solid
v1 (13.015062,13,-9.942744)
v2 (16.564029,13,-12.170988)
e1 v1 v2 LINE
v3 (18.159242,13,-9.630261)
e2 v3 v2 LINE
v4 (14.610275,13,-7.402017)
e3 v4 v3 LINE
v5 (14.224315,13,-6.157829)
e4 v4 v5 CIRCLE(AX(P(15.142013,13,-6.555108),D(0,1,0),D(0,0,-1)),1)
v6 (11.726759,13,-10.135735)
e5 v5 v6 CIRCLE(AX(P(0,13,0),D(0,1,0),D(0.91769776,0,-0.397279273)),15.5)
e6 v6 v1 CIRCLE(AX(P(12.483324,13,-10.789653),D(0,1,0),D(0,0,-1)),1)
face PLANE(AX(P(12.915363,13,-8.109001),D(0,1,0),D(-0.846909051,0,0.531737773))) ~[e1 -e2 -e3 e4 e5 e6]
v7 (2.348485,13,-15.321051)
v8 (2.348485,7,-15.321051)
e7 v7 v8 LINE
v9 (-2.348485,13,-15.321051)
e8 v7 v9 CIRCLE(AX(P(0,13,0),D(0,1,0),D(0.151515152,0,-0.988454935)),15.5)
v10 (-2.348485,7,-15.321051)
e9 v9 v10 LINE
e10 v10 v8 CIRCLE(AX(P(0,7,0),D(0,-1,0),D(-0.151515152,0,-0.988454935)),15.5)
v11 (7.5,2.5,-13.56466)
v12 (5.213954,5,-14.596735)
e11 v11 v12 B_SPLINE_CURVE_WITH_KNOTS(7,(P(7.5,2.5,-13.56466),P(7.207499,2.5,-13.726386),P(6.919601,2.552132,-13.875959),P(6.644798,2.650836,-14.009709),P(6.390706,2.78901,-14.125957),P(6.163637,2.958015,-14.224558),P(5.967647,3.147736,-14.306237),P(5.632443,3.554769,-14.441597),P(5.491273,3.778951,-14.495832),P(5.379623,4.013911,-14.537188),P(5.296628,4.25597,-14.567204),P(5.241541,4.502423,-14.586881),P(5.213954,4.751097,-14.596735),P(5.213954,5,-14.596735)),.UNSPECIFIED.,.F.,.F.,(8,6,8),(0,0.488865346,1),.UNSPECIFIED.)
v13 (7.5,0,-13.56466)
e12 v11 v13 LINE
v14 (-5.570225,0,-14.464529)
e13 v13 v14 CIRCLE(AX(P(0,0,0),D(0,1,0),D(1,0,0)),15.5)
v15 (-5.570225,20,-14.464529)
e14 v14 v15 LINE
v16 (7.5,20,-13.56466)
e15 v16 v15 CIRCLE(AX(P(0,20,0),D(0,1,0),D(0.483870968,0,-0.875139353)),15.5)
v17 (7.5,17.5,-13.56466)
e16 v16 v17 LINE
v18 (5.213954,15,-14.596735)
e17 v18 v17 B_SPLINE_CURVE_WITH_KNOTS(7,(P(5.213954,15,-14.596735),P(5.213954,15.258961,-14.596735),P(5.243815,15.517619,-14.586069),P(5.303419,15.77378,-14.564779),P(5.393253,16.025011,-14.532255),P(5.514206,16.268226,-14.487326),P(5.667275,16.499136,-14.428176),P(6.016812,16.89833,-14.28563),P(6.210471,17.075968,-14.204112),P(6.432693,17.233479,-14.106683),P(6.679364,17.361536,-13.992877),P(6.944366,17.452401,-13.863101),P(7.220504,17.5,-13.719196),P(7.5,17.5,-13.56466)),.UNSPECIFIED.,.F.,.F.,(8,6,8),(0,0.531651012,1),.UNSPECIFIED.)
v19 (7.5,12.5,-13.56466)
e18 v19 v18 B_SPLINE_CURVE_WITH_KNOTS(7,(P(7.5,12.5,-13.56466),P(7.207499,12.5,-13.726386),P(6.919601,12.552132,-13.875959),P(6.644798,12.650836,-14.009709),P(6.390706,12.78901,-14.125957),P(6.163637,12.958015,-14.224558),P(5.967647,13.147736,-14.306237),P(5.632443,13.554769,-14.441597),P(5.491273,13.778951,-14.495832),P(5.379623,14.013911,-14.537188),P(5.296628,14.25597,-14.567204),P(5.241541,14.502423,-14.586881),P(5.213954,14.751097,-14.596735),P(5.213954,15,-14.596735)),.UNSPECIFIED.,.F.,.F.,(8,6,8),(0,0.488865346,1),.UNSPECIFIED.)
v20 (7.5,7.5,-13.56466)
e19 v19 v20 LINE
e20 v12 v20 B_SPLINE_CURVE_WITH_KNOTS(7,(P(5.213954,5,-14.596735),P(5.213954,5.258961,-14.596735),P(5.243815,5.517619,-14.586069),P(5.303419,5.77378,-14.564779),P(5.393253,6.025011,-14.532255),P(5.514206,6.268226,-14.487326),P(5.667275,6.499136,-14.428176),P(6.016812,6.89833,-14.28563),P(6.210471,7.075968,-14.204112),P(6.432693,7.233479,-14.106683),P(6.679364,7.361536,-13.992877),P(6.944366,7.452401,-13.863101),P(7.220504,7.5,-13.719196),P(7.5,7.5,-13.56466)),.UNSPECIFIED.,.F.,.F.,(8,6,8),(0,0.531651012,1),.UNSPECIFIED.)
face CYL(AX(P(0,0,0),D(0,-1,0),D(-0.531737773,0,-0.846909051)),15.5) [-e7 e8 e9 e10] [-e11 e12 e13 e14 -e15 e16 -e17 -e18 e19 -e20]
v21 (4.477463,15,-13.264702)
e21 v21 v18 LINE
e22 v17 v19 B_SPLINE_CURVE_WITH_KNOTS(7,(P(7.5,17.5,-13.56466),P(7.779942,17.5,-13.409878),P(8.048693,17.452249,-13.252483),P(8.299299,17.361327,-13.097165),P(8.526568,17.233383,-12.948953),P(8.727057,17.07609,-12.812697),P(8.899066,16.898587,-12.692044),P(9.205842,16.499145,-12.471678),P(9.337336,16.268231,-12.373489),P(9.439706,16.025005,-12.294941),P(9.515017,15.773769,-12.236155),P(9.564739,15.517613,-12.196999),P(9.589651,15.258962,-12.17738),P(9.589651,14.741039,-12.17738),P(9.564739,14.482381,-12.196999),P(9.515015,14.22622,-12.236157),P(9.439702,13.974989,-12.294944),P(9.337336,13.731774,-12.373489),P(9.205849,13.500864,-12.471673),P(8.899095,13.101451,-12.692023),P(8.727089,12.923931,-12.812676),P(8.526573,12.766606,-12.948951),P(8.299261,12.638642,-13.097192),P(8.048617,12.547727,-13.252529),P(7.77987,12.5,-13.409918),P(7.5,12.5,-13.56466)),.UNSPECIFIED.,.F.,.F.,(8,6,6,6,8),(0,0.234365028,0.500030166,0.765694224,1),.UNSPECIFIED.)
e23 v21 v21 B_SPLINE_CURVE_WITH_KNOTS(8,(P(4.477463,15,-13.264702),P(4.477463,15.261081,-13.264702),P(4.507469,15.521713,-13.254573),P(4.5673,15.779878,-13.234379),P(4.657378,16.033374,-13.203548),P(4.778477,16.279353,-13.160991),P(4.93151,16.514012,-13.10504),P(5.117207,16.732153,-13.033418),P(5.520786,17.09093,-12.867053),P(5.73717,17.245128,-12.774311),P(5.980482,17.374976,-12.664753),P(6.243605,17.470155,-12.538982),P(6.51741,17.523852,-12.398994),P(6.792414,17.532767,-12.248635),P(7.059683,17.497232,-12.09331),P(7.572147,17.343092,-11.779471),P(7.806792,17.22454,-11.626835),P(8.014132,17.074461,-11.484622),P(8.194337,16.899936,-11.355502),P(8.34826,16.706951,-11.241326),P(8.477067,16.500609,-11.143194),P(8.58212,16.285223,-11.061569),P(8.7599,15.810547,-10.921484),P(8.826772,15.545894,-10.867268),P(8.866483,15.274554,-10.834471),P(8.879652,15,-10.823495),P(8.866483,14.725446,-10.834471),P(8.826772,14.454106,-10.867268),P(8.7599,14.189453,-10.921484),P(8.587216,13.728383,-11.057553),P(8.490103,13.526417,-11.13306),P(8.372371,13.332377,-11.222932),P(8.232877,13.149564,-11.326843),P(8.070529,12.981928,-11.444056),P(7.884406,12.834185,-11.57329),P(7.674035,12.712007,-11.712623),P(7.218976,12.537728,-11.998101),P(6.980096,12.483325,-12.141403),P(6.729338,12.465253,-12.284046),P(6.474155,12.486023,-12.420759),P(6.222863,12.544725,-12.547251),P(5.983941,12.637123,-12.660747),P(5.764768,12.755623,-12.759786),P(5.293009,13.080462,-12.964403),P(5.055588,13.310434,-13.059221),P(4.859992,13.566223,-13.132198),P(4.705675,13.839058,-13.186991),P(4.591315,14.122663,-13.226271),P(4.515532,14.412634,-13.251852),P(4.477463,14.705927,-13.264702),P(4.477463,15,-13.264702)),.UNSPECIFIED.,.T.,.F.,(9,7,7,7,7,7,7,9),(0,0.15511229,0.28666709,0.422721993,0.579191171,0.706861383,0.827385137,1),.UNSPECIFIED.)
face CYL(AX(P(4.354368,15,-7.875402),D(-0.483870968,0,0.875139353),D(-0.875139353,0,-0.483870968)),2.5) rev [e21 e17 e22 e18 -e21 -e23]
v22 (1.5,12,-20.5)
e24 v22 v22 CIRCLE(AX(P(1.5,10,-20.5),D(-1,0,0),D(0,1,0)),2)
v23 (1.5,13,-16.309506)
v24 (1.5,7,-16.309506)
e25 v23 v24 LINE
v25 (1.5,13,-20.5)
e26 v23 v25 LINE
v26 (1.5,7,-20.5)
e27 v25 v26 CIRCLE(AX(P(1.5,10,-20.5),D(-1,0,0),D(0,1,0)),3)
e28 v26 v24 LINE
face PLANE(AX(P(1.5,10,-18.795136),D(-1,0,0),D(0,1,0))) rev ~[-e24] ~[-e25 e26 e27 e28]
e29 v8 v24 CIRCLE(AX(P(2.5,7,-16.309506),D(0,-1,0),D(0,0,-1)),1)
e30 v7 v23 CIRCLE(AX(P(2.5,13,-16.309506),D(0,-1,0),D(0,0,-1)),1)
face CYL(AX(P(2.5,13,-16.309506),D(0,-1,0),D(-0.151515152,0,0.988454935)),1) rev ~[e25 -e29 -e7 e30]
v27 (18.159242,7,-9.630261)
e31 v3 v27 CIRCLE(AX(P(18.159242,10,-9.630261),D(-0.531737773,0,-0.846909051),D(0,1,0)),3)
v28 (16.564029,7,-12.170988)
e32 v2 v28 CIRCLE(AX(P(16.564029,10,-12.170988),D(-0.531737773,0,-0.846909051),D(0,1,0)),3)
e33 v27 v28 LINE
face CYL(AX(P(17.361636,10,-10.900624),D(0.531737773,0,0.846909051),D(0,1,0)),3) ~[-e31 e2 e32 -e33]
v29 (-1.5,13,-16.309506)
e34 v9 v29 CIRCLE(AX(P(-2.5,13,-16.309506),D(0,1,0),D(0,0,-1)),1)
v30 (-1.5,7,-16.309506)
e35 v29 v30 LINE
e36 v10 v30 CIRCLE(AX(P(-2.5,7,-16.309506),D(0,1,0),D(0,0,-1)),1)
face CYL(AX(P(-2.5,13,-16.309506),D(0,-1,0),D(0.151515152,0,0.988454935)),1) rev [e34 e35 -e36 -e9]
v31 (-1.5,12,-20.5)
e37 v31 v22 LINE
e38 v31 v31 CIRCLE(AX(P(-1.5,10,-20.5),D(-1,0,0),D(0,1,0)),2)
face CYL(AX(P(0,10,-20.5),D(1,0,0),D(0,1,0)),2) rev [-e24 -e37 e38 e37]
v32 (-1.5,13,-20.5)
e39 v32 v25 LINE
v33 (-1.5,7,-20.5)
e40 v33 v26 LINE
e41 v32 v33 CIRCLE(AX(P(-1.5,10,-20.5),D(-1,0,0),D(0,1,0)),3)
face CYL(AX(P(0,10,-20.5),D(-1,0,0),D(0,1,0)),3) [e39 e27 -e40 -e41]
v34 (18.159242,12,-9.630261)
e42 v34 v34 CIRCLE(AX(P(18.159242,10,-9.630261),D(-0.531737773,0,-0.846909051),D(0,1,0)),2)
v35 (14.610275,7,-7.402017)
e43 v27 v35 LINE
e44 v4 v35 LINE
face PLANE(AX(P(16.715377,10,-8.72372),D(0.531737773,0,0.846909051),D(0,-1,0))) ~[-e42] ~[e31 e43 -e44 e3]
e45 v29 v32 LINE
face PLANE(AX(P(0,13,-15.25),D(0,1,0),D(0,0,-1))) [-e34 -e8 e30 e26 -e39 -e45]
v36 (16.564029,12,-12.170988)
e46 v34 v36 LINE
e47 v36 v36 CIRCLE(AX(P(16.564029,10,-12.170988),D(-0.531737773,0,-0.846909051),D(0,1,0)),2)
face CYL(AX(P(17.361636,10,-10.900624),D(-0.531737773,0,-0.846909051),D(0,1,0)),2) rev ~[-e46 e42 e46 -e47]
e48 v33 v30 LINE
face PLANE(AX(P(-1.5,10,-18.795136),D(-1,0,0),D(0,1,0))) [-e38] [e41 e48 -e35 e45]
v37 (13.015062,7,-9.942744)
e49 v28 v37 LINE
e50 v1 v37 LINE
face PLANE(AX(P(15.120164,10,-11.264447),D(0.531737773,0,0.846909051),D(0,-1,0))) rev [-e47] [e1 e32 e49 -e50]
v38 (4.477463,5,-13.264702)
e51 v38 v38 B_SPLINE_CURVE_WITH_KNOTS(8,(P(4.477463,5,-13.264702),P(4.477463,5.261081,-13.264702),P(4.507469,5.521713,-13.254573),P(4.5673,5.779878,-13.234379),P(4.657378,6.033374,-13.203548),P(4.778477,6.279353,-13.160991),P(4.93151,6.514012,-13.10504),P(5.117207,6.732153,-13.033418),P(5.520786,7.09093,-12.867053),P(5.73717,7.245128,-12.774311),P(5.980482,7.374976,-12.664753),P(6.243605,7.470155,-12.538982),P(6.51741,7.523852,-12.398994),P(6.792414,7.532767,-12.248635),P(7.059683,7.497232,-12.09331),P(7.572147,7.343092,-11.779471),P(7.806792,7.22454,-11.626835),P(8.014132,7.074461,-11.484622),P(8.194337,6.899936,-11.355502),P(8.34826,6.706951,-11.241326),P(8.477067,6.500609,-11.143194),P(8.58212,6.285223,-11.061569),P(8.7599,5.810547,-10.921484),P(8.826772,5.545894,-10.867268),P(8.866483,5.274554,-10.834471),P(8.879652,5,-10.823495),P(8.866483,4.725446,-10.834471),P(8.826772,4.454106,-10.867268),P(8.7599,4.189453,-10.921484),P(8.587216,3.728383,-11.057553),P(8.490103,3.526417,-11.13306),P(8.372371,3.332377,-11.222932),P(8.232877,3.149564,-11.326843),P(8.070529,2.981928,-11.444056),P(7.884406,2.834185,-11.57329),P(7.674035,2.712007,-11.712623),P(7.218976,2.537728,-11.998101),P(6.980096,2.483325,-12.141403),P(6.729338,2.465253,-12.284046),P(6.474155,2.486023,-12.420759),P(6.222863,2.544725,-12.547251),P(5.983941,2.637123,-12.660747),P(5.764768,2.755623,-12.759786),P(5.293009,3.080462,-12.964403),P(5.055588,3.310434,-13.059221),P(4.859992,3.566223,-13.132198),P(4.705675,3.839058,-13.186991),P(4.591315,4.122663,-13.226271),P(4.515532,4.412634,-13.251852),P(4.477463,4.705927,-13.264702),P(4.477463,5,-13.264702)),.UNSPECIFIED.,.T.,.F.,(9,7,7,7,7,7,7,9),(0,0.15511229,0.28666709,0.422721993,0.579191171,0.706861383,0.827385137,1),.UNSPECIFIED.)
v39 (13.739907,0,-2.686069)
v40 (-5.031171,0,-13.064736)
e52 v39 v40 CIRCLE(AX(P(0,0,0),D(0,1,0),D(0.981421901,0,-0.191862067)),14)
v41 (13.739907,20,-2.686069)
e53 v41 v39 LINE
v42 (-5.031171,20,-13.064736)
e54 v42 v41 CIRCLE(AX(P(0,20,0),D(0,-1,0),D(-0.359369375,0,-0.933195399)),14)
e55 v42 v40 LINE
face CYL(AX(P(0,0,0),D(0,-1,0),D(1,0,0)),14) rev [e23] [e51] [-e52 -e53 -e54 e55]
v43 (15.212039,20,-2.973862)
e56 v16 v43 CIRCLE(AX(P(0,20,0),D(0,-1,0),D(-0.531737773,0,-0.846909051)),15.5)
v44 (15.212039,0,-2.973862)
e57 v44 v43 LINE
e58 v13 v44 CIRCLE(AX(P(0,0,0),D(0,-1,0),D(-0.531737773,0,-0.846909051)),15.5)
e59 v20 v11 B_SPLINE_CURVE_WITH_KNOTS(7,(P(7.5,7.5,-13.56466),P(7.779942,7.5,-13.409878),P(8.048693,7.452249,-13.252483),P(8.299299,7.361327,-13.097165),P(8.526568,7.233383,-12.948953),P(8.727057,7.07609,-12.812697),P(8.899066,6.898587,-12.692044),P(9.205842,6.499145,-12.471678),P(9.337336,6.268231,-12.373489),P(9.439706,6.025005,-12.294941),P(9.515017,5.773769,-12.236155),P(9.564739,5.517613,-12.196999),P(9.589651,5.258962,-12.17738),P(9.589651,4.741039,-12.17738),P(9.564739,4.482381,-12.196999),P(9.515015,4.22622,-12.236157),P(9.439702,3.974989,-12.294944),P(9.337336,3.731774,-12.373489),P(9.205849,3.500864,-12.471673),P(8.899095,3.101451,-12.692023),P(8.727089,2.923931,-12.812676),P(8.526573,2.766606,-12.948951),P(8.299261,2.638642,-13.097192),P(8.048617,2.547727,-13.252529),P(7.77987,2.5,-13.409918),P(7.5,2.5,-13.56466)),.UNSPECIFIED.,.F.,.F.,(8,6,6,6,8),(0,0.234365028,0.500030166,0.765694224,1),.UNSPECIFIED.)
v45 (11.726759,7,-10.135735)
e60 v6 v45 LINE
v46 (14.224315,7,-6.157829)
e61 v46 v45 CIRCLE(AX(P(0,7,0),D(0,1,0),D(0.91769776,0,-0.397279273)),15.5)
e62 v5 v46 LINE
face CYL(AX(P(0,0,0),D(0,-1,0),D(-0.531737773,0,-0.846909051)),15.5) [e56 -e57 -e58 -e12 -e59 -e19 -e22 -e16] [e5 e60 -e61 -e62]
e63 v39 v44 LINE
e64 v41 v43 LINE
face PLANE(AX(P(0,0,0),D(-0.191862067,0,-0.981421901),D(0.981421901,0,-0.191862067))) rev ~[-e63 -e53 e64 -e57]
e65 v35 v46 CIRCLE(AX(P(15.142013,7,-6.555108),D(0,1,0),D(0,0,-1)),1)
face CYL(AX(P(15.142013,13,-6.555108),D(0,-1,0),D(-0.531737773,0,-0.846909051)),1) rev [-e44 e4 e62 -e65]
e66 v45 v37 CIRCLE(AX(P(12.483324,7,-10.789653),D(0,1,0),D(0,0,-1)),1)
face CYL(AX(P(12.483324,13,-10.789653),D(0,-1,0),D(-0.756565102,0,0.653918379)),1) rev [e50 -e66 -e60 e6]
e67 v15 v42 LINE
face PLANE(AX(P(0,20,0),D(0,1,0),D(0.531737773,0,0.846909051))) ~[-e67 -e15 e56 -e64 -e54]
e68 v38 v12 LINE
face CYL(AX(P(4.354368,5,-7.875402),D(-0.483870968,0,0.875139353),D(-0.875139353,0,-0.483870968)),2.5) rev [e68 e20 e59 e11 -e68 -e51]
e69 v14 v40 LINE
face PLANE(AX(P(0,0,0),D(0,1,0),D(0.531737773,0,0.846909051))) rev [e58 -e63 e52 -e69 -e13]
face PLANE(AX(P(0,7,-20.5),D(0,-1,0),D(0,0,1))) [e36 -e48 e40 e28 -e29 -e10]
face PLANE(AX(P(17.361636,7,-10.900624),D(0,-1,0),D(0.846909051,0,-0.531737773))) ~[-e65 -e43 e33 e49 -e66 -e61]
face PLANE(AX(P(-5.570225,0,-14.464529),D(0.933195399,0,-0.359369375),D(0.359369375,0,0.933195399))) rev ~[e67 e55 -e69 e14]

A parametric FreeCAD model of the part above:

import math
import FreeCAD as App
import Part
import Sketcher
from FreeCAD import Vector
Q = App.Units.Quantity


def edges_at(feature, points):
    """Names of the edges that pass closest to the given points."""
    edges = feature.Shape.Edges
    near = lambda p: min(range(len(edges)), key=lambda i: edges[i].distToShape(Part.Vertex(*p))[0])
    return sorted({f"Edge{near(p) + 1}" for p in points})


def add_polygon(sketch, points):
    """Adds a closed chain of lines whose ends are joined by coincident constraints."""
    first, n = sketch.GeometryCount, len(points)
    for a, b in zip(points, points[1:] + points[:1]):
        sketch.addGeometry(Part.LineSegment(App.Vector(*a, 0), App.Vector(*b, 0)), False)
    for i in range(n):
        sketch.addConstraint(Sketcher.Constraint("Coincident", first + i, 2, first + (i + 1) % n, 1))

doc = App.newDocument("Part")
body = doc.addObject("PartDesign::Body", "Body")

sketch1 = body.newObject("Sketcher::SketchObject", "Sketch")
sketch1.AttachmentSupport = (doc.getObject("XZ_Plane"), [""])
sketch1.MapMode = "FlatFace"
sketch1.addGeometry([
    Part.Circle(Vector(0, 0, 0), Vector(0, 0, 1), 16),
    Part.Circle(Vector(0, 0, 0), Vector(0, 0, 1), 14),
], False)
sketch1.addConstraint([
    Sketcher.Constraint("Coincident", 0, 3, -1, 1),
    Sketcher.Constraint("Coincident", 1, 3, -1, 1),
    Sketcher.Constraint("Diameter", 0, Q("31 mm")),
    Sketcher.Constraint("Diameter", 1, Q("28 mm")),
])
pad1 = body.newObject("PartDesign::Pad", "Pad")
pad1.Profile = sketch1
pad1.Length = 20
pad1.Reversed = True

sketch2 = body.newObject("Sketcher::SketchObject", "Sketch001")
sketch2.AttachmentSupport = (doc.getObject("XZ_Plane"), [""])
sketch2.MapMode = "FlatFace"
sketch2.AttachmentOffset = App.Placement(Vector(0, 0, -20), App.Rotation())
add_polygon(sketch2, [(-21, -21), (-21, 21), (21, 21), (21, -21)])
sketch2.addGeometry(Part.LineSegment(Vector(8, -14, 0), Vector(0, 0, 0)), False)
sketch2.addGeometry(Part.LineSegment(Vector(0, 0, 0), Vector(-8, -14, 0)), False)
sketch2.addGeometry(Part.ArcOfCircle(Part.Circle(Vector(0, 0, 0), Vector(0, 0, 1), 15), math.radians(-119), math.radians(-61)), False)
sketch2.addConstraint([
    Sketcher.Constraint("Coincident", 4, 2, 5, 1),
    Sketcher.Constraint("Coincident", 5, 2, 6, 1),
    Sketcher.Constraint("Coincident", 6, 2, 4, 1),
    Sketcher.Constraint("Vertical", 0),
    Sketcher.Constraint("Horizontal", 1),
    Sketcher.Constraint("Vertical", 2),
    Sketcher.Constraint("Horizontal", 3),
    Sketcher.Constraint("Coincident", 6, 3, -1, 1),
    Sketcher.Constraint("Coincident", 4, 2, -1, 1),
    Sketcher.Constraint("Symmetric", 0, 2, 2, 2, -1, 1),
    Sketcher.Constraint("Horizontal", 5, 2, 6, 2),
    Sketcher.Constraint("Equal", 3, 0),
    Sketcher.Constraint("Radius", 6, Q("15.5 mm")),
    Sketcher.Constraint("DistanceX", 5, 2, 6, 2, Q("15 mm")),
    Sketcher.Constraint("DistanceX", 1, 1, 1, 2, Q("42.638 mm")),
])
pocket1 = body.newObject("PartDesign::Pocket", "Pocket")
pocket1.Profile = sketch2
pocket1.Type = "ThroughAll"
pocket1.Reversed = True

sketch3 = body.newObject("Sketcher::SketchObject", "Sketch002")
sketch3.AttachmentSupport = (doc.getObject("YZ_Plane"), [""])
sketch3.MapMode = "FlatFace"
sketch3.addGeometry([
    Part.LineSegment(Vector(7, -20.5, 0), Vector(7, -15.2, 0)),
    Part.LineSegment(Vector(7, -15.2, 0), Vector(13, -15.2, 0)),
    Part.LineSegment(Vector(13, -15.2, 0), Vector(13, -20.5, 0)),
    Part.ArcOfCircle(Part.Circle(Vector(10, -20.5, 0), Vector(0, 0, 1), 3), math.radians(180), math.radians(360)),
    Part.Circle(Vector(10, -20.5, 0), Vector(0, 0, 1), 2),
], False)
sketch3.addConstraint([
    Sketcher.Constraint("Coincident", 0, 2, 1, 1),
    Sketcher.Constraint("Coincident", 1, 2, 2, 1),
    Sketcher.Constraint("Tangent", 2, 2, 3, 2),
    Sketcher.Constraint("Tangent", 3, 1, 0, 1),
    Sketcher.Constraint("Vertical", 0),
    Sketcher.Constraint("Horizontal", 1),
    Sketcher.Constraint("Vertical", 2),
    Sketcher.Constraint("Coincident", 4, 3, 3, 3),
    Sketcher.Constraint("Diameter", 4, Q("4 mm")),
    Sketcher.Constraint("Radius", 3, Q("3 mm")),
    Sketcher.Constraint("DistanceX", -1, 1, 3, 3, Q("10 mm")),
    Sketcher.Constraint("DistanceY", 0, 1, 0, 2, Q("5.25 mm")),
    Sketcher.Constraint("DistanceY", 3, 3, -1, 1, Q("20.5 mm")),
])
pad2 = body.newObject("PartDesign::Pad", "Pad001")
pad2.Profile = sketch3
pad2.Length = 3
pad2.Midplane = True
doc.recompute()

datumplane = body.newObject("PartDesign::Plane", "DatumPlane")
datumplane.Placement = App.Placement(Vector(0, 0, 0), App.Rotation(Vector(-0.483870968, 0, 0.875139353), Vector(0, -1, 0), Vector(0.875139353, 0, 0.483870968), "ZXY"))
mirrored = body.newObject("PartDesign::Mirrored", "Mirrored")
mirrored.Originals = [pad1, pad2]
mirrored.MirrorPlane = (datumplane, [""])
body.Tip = mirrored

sketch4 = body.newObject("Sketcher::SketchObject", "Sketch003")
sketch4.AttachmentSupport = (doc.getObject("XZ_Plane"), [""])
sketch4.MapMode = "FlatFace"
sketch4.addGeometry([
    Part.LineSegment(Vector(0, 0, 0), Vector(-6, -14, 0)),
    Part.ArcOfCircle(Part.Circle(Vector(0, 0, 0), Vector(0, 0, 1), 16), math.radians(-11), math.radians(249)),
    Part.LineSegment(Vector(15, -3, 0), Vector(0, 0, 0)),
], False)
sketch4.addConstraint([
    Sketcher.Constraint("Coincident", 0, 2, 1, 2),
    Sketcher.Constraint("Coincident", 1, 1, 2, 1),
    Sketcher.Constraint("Coincident", 2, 2, 0, 1),
    Sketcher.Constraint("Coincident", 1, 3, -1, 1),
    Sketcher.Constraint("Coincident", 2, 2, -1, 1),
    Sketcher.Constraint("Radius", 1, Q("15.5 mm")),
    Sketcher.Constraint("DistanceY", 0, 2, -1, 1, Q("14.464529 mm")),
    Sketcher.Constraint("DistanceX", -1, 1, 1, 1, Q("15.212039 mm")),
])
pocket2 = body.newObject("PartDesign::Pocket", "Pocket001")
pocket2.Profile = sketch4
pocket2.Type = "ThroughAll"
pocket2.Midplane = True

sketch5 = body.newObject("Sketcher::SketchObject", "Sketch004")
sketch5.Placement = App.Placement(Vector(4.354368, 0, -7.875402), App.Rotation(Vector(-0.875139353, 0, -0.483870968), Vector(0, 1.000000001, 0), Vector(0.483870968, 0, -0.875139353), "ZXY"))
sketch5.addGeometry([
    Part.Circle(Vector(0, 15, 0), Vector(0, 0, 1), 2.5),
    Part.Circle(Vector(0, 5, 0), Vector(0, 0, 1), 2.5),
], False)
sketch5.addConstraint([
    Sketcher.Constraint("Equal", 0, 1),
    Sketcher.Constraint("PointOnObject", 0, 3, -2),
    Sketcher.Constraint("PointOnObject", 1, 3, -2),
    Sketcher.Constraint("Diameter", 0, Q("5 mm")),
    Sketcher.Constraint("DistanceY", -1, 1, 0, 3, Q("15 mm")),
    Sketcher.Constraint("DistanceY", -1, 1, 1, 3, Q("5 mm")),
])
pocket3 = body.newObject("PartDesign::Pocket", "Pocket002")
pocket3.Profile = sketch5
pocket3.Length = 10
pocket3.Reversed = True
doc.recompute()

fillet = body.newObject("PartDesign::Fillet", "Fillet")
fillet.Base = (pocket3, edges_at(pocket3, [
    (-1.5, 10, -15.427),
    (1.5, 10, -15.427),
    (13.863, 10, -6.933),
    (12.268, 10, -9.474),
]))
fillet.Radius = 1

doc.recompute()
